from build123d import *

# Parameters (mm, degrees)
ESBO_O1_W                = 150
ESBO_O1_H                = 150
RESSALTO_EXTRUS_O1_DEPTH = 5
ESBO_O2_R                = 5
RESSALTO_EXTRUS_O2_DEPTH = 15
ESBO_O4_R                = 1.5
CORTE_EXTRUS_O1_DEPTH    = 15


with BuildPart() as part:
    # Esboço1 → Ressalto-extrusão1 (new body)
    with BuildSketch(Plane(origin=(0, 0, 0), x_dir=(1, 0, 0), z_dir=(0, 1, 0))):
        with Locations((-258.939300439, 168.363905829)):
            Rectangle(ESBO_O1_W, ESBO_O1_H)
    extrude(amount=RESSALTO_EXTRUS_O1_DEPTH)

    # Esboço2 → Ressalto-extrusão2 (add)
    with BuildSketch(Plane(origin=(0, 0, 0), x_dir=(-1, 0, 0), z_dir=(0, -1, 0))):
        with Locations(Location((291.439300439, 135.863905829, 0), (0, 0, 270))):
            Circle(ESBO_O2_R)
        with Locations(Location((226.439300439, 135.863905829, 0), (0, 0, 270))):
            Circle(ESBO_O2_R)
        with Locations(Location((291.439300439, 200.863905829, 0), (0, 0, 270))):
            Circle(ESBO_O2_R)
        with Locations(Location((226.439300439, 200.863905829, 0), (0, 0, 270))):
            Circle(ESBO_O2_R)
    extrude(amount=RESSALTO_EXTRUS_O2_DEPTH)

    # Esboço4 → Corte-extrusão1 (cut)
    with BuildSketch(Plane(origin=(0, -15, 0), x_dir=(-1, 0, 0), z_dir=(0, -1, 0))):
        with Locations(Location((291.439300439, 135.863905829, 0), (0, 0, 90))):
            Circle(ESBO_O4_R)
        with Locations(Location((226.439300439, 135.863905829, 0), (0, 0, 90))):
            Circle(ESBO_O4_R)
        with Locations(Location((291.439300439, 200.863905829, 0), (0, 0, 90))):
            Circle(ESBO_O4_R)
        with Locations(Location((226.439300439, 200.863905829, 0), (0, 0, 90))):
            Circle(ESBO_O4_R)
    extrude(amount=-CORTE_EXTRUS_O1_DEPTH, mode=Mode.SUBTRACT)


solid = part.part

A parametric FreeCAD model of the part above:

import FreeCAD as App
import Part
import Sketcher

V = App.Vector
Q = App.Units.Quantity

doc = App.newDocument("Part")
params = doc.addObject("Spreadsheet::Sheet", "Params")
for row, (alias, value) in enumerate([
    ("sketch1_width", "150 mm"),
    ("pad1_length", "5 mm"),
    ("sketch2_diameter", "10 mm"),
    ("pad2_length", "15 mm"),
    ("sketch3_diameter", "3 mm"),
    ("pocket1_length", "15 mm"),
], start=1):
    params.set(f"A{row}", alias)
    params.set(f"B{row}", "=" + value)
    params.setAlias(f"B{row}", alias)

body = doc.addObject("PartDesign::Body", "Body")

# Sketch on XZ plane
sketch1 = doc.addObject("Sketcher::SketchObject", "Sketch")
body.addObject(sketch1)
sketch1.AttachmentSupport = (doc.XZ_Plane, [""])
sketch1.MapMode = "FlatFace"
sketch1.addGeometry([
    Part.LineSegment(V(-333.9393, -243.363906, 0), V(-333.9393, -93.363906, 0)),
    Part.LineSegment(V(-333.9393, -93.363906, 0), V(-183.9393, -93.363906, 0)),
    Part.LineSegment(V(-183.9393, -93.363906, 0), V(-183.9393, -243.363906, 0)),
    Part.LineSegment(V(-183.9393, -243.363906, 0), V(-333.9393, -243.363906, 0)),
], False)
sketch1.addConstraint([
    Sketcher.Constraint("Coincident", 0, 2, 1, 1),
    Sketcher.Constraint("Coincident", 1, 2, 2, 1),
    Sketcher.Constraint("Coincident", 2, 2, 3, 1),
    Sketcher.Constraint("Coincident", 3, 2, 0, 1),
    Sketcher.Constraint("Vertical", 0),
    Sketcher.Constraint("Horizontal", 1),
    Sketcher.Constraint("Vertical", 2),
    Sketcher.Constraint("Horizontal", 3),
    Sketcher.Constraint("Equal", 3, 0),
    Sketcher.Constraint("DistanceX", 1, 1, 1, 2, Q("150 mm")),
    Sketcher.Constraint("DistanceX", 0, 2, -1, 1, Q("333.9393 mm")),
    Sketcher.Constraint("DistanceY", 0, 2, -1, 1, Q("93.363906 mm")),
])
sketch1.setExpression("Constraints[9]", "Params.sketch1_width")
pad1 = doc.addObject("PartDesign::Pad", "Pad")
body.addObject(pad1)
pad1.Profile = sketch1
pad1.setExpression("Length", "Params.pad1_length")
pad1.Reversed = True

# Sketch on XZ plane
sketch2 = doc.addObject("Sketcher::SketchObject", "Sketch001")
body.addObject(sketch2)
sketch2.AttachmentSupport = (doc.XZ_Plane, [""])
sketch2.MapMode = "FlatFace"
sketch2.addGeometry([
    Part.Circle(V(-291.4393, -135.863906, 0), V(0, 0, 1), 5),
    Part.Circle(V(-226.4393, -135.863906, 0), V(0, 0, 1), 5),
    Part.Circle(V(-291.4393, -200.863906, 0), V(0, 0, 1), 5),
    Part.Circle(V(-226.4393, -200.863906, 0), V(0, 0, 1), 5),
], False)
sketch2.addConstraint([
    Sketcher.Constraint("Equal", 0, 1),
    Sketcher.Constraint("Equal", 1, 2),
    Sketcher.Constraint("Equal", 2, 3),
    Sketcher.Constraint("Horizontal", 0, 3, 1, 3),
    Sketcher.Constraint("Horizontal", 2, 3, 3, 3),
    Sketcher.Constraint("Vertical", 0, 3, 2, 3),
    Sketcher.Constraint("Vertical", 1, 3, 3, 3),
    Sketcher.Constraint("Diameter", 0, Q("10 mm")),
    Sketcher.Constraint("DistanceX", 0, 3, 1, 3, Q("65 mm")),
    Sketcher.Constraint("DistanceY", 2, 3, 0, 3, Q("65 mm")),
    Sketcher.Constraint("DistanceX", 0, 3, -1, 1, Q("291.4393 mm")),
    Sketcher.Constraint("DistanceY", 0, 3, -1, 1, Q("135.863906 mm")),
])
sketch2.setExpression("Constraints[7]", "Params.sketch2_diameter")
pad2 = doc.addObject("PartDesign::Pad", "Pad001")
body.addObject(pad2)
pad2.Profile = sketch2
pad2.setExpression("Length", "Params.pad2_length")

# Sketch on XZ plane
sketch3 = doc.addObject("Sketcher::SketchObject", "Sketch002")
body.addObject(sketch3)
sketch3.AttachmentSupport = (doc.XZ_Plane, [""])
sketch3.MapMode = "FlatFace"
sketch3.AttachmentOffset = App.Placement(V(0, 0, 15), App.Rotation())
sketch3.addGeometry([
    Part.Circle(V(-291.4393, -135.863906, 0), V(0, 0, 1), 1.5),
    Part.Circle(V(-226.4393, -135.863906, 0), V(0, 0, 1), 1.5),
    Part.Circle(V(-291.4393, -200.863906, 0), V(0, 0, 1), 1.5),
    Part.Circle(V(-226.4393, -200.863906, 0), V(0, 0, 1), 1.5),
], False)
sketch3.addConstraint([
    Sketcher.Constraint("Equal", 0, 1),
    Sketcher.Constraint("Equal", 1, 2),
    Sketcher.Constraint("Equal", 2, 3),
    Sketcher.Constraint("Horizontal", 0, 3, 1, 3),
    Sketcher.Constraint("Horizontal", 2, 3, 3, 3),
    Sketcher.Constraint("Vertical", 0, 3, 2, 3),
    Sketcher.Constraint("Vertical", 1, 3, 3, 3),
    Sketcher.Constraint("Diameter", 0, Q("3 mm")),
    Sketcher.Constraint("DistanceX", 0, 3, 1, 3, Q("65 mm")),
    Sketcher.Constraint("DistanceY", 2, 3, 0, 3, Q("65 mm")),
    Sketcher.Constraint("DistanceX", 0, 3, -1, 1, Q("291.4393 mm")),
    Sketcher.Constraint("DistanceY", 0, 3, -1, 1, Q("135.863906 mm")),
])
sketch3.setExpression("Constraints[7]", "Params.sketch3_diameter")
pocket1 = doc.addObject("PartDesign::Pocket", "Pocket")
body.addObject(pocket1)
pocket1.Profile = sketch3
pocket1.setExpression("Length", "Params.pocket1_length")

doc.recompute()
